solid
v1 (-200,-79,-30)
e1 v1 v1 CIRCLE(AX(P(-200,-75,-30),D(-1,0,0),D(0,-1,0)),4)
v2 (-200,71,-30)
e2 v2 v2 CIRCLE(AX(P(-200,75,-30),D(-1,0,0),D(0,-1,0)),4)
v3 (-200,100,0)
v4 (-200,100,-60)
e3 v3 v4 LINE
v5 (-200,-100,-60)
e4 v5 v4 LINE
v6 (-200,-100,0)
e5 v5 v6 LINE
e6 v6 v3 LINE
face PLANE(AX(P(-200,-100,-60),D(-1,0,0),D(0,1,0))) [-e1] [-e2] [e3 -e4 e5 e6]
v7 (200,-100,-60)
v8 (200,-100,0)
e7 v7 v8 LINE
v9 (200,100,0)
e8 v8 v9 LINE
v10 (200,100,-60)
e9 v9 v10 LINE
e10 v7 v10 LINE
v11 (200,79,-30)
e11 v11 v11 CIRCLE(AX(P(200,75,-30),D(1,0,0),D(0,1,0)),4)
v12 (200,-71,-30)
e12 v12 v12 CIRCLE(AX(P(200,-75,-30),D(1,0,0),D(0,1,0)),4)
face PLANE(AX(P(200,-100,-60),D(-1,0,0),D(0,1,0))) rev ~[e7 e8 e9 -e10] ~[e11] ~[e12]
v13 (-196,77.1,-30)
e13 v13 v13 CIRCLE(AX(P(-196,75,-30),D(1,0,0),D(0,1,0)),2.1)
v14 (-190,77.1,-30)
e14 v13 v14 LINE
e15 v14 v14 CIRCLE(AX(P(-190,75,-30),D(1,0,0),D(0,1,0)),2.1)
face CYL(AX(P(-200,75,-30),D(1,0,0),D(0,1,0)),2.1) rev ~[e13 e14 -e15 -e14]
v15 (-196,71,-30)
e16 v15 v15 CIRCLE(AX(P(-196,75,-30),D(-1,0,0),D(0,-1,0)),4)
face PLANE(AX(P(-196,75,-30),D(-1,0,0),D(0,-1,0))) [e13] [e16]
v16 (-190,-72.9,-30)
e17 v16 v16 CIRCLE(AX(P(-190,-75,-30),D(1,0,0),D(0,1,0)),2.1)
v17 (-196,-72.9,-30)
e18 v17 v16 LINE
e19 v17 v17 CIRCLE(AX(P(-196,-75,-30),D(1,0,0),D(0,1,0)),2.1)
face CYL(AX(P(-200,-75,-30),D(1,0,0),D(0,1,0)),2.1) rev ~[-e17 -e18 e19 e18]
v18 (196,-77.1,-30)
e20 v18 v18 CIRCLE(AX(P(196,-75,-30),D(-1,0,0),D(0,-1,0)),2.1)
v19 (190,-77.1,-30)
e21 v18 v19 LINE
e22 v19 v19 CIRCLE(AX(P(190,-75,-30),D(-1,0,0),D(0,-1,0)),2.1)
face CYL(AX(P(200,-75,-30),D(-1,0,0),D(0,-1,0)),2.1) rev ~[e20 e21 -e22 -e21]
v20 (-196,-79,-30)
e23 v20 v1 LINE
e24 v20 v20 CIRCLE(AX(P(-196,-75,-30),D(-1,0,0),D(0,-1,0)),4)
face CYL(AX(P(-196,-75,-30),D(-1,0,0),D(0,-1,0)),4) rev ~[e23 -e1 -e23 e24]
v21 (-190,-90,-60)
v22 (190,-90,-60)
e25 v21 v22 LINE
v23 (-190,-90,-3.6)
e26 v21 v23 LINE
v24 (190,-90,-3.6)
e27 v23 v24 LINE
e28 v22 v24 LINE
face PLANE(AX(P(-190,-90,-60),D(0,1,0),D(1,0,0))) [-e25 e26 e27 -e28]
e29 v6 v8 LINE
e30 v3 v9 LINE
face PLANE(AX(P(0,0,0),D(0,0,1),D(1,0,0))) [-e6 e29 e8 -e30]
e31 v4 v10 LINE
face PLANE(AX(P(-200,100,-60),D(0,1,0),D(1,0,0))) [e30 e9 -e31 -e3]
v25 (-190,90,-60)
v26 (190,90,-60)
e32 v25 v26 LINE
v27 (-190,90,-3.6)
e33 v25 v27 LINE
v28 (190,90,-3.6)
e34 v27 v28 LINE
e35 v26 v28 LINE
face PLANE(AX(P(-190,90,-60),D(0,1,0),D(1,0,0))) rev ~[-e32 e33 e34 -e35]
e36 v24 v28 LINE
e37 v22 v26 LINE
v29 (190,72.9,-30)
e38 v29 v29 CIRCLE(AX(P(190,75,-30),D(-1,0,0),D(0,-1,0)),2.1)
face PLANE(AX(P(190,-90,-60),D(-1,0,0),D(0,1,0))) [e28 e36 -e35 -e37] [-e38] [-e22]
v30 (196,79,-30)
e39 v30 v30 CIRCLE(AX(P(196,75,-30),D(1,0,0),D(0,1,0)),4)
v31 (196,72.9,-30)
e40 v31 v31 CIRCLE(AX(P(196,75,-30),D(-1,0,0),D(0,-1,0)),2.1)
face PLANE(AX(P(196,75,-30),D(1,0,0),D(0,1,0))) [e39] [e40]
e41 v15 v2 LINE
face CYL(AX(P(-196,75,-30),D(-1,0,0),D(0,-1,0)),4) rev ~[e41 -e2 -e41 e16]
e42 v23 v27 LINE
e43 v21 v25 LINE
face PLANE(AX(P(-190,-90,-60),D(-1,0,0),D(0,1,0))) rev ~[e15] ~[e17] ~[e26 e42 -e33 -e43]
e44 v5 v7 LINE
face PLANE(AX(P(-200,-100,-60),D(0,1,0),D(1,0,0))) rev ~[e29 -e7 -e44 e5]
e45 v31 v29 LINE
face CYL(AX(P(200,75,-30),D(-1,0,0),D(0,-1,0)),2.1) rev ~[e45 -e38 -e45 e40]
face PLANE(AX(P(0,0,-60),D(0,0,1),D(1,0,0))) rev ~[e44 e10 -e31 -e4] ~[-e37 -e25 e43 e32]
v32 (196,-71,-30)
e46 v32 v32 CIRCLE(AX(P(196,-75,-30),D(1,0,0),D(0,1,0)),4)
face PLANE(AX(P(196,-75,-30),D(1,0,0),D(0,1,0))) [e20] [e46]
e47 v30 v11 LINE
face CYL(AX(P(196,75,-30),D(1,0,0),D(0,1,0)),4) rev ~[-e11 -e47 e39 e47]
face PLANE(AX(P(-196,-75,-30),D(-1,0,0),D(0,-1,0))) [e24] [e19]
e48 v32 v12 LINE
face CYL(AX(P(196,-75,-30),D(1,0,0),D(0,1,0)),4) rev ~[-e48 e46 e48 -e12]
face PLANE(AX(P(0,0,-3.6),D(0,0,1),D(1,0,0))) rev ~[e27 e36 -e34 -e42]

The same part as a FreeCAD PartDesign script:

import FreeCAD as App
import Part
import Sketcher

V = App.Vector
Q = App.Units.Quantity

doc = App.newDocument("Part")
body = doc.addObject("PartDesign::Body", "Body")

# Sketch on XY plane
sketch1 = body.newObject("Sketcher::SketchObject", "Sketch")
sketch1.AttachmentSupport = (doc.getObject("XY_Plane"), [""])
sketch1.MapMode = "FlatFace"
sketch1.addGeometry(Part.LineSegment(V(-200, 100, 0), V(-200, -100, 0)), False)
sketch1.addGeometry(Part.LineSegment(V(-200, -100, 0), V(200, -100, 0)), False)
sketch1.addGeometry(Part.LineSegment(V(200, -100, 0), V(200, 100, 0)), False)
sketch1.addGeometry(Part.LineSegment(V(200, 100, 0), V(-200, 100, 0)), False)
sketch1.addConstraint(Sketcher.Constraint("Coincident", 0, 2, 1, 1))
sketch1.addConstraint(Sketcher.Constraint("Coincident", 1, 2, 2, 1))
sketch1.addConstraint(Sketcher.Constraint("Coincident", 2, 2, 3, 1))
sketch1.addConstraint(Sketcher.Constraint("Coincident", 3, 2, 0, 1))
sketch1.addConstraint(Sketcher.Constraint("Vertical", 0))
sketch1.addConstraint(Sketcher.Constraint("Horizontal", 1))
sketch1.addConstraint(Sketcher.Constraint("Vertical", 2))
sketch1.addConstraint(Sketcher.Constraint("Horizontal", 3))
sketch1.addConstraint(Sketcher.Constraint("Symmetric", 0, 2, 2, 2, -1, 1))
sketch1.addConstraint(Sketcher.Constraint("DistanceX", 1, 1, 1, 2, Q("400 mm")))
sketch1.addConstraint(Sketcher.Constraint("DistanceY", 0, 2, 0, 1, Q("200 mm")))
pad1 = body.newObject("PartDesign::Pad", "Pad")
pad1.Profile = sketch1
pad1.Length = 3.6
pad1.Reversed = True

# Sketch on XY plane
sketch2 = body.newObject("Sketcher::SketchObject", "Sketch001")
sketch2.AttachmentSupport = (doc.getObject("XY_Plane"), [""])
sketch2.MapMode = "FlatFace"
sketch2.AttachmentOffset = App.Placement(V(0, 0, -60), App.Rotation())
sketch2.addGeometry(Part.LineSegment(V(-200, 100, 0), V(-200, -100, 0)), False)
sketch2.addGeometry(Part.LineSegment(V(-200, -100, 0), V(200, -100, 0)), False)
sketch2.addGeometry(Part.LineSegment(V(200, -100, 0), V(200, 100, 0)), False)
sketch2.addGeometry(Part.LineSegment(V(200, 100, 0), V(-200, 100, 0)), False)
sketch2.addGeometry(Part.LineSegment(V(190, -90, 0), V(-190, -90, 0)), False)
sketch2.addGeometry(Part.LineSegment(V(-190, -90, 0), V(-190, 90, 0)), False)
sketch2.addGeometry(Part.LineSegment(V(-190, 90, 0), V(190, 90, 0)), False)
sketch2.addGeometry(Part.LineSegment(V(190, 90, 0), V(190, -90, 0)), False)
sketch2.addConstraint(Sketcher.Constraint("Coincident", 0, 2, 1, 1))
sketch2.addConstraint(Sketcher.Constraint("Coincident", 1, 2, 2, 1))
sketch2.addConstraint(Sketcher.Constraint("Coincident", 2, 2, 3, 1))
sketch2.addConstraint(Sketcher.Constraint("Coincident", 3, 2, 0, 1))
sketch2.addConstraint(Sketcher.Constraint("Coincident", 4, 2, 5, 1))
sketch2.addConstraint(Sketcher.Constraint("Coincident", 5, 2, 6, 1))
sketch2.addConstraint(Sketcher.Constraint("Coincident", 6, 2, 7, 1))
sketch2.addConstraint(Sketcher.Constraint("Coincident", 7, 2, 4, 1))
sketch2.addConstraint(Sketcher.Constraint("Vertical", 0))
sketch2.addConstraint(Sketcher.Constraint("Horizontal", 1))
sketch2.addConstraint(Sketcher.Constraint("Vertical", 2))
sketch2.addConstraint(Sketcher.Constraint("Horizontal", 3))
sketch2.addConstraint(Sketcher.Constraint("Horizontal", 4))
sketch2.addConstraint(Sketcher.Constraint("Vertical", 5))
sketch2.addConstraint(Sketcher.Constraint("Horizontal", 6))
sketch2.addConstraint(Sketcher.Constraint("Vertical", 7))
sketch2.addConstraint(Sketcher.Constraint("Symmetric", 0, 2, 2, 2, -1, 1))
sketch2.addConstraint(Sketcher.Constraint("Symmetric", 4, 2, 6, 2, -1, 1))
sketch2.addConstraint(Sketcher.Constraint("DistanceX", 1, 1, 1, 2, Q("400 mm")))
sketch2.addConstraint(Sketcher.Constraint("DistanceX", 4, 2, 4, 1, Q("380 mm")))
sketch2.addConstraint(Sketcher.Constraint("DistanceY", 0, 2, 0, 1, Q("200 mm")))
sketch2.addConstraint(Sketcher.Constraint("DistanceY", 5, 1, 5, 2, Q("180 mm")))
pad2 = body.newObject("PartDesign::Pad", "Pad001")
pad2.Profile = sketch2
pad2.Type = "UpToLast"

# Sketch on YZ plane
sketch3 = body.newObject("Sketcher::SketchObject", "Sketch002")
sketch3.AttachmentSupport = (doc.getObject("YZ_Plane"), [""])
sketch3.MapMode = "FlatFace"
sketch3.AttachmentOffset = App.Placement(V(0, 0, -200), App.Rotation())
sketch3.addGeometry(Part.Circle(V(75, -30, 0), V(0, 0, 1), 2.1), False)
sketch3.addGeometry(Part.Circle(V(-75, -30, 0), V(0, 0, 1), 2.1), False)
sketch3.addConstraint(Sketcher.Constraint("Equal", 0, 1))
sketch3.addConstraint(Sketcher.Constraint("Symmetric", 0, 3, 1, 3, -2))
sketch3.addConstraint(Sketcher.Constraint("Diameter", 0, Q("4.2 mm")))
sketch3.addConstraint(Sketcher.Constraint("DistanceX", -1, 1, 0, 3, Q("75 mm")))
sketch3.addConstraint(Sketcher.Constraint("DistanceY", 0, 3, -1, 1, Q("30 mm")))
doc.recompute()
hole = body.newObject("PartDesign::Hole", "Hole")
hole.Profile = sketch3
hole.ThreadType = "None"
hole.Diameter = 4.2
hole.DepthType = "Dimension"
hole.Depth = 12
hole.DrillPoint = "Angled"
hole.DrillPointAngle = 118
hole.HoleCutType = "Counterbore"
hole.HoleCutDiameter = 8
hole.HoleCutDepth = 4
hole.Reversed = True

# Sketch on YZ plane
sketch4 = body.newObject("Sketcher::SketchObject", "Sketch003")
sketch4.AttachmentSupport = (doc.getObject("YZ_Plane"), [""])
sketch4.MapMode = "FlatFace"
sketch4.AttachmentOffset = App.Placement(V(0, 0, 200), App.Rotation())
sketch4.addGeometry(Part.Circle(V(75, -30, 0), V(0, 0, 1), 2.1), False)
sketch4.addGeometry(Part.Circle(V(-75, -30, 0), V(0, 0, 1), 2.1), False)
sketch4.addConstraint(Sketcher.Constraint("Equal", 0, 1))
sketch4.addConstraint(Sketcher.Constraint("Symmetric", 0, 3, 1, 3, -2))
sketch4.addConstraint(Sketcher.Constraint("Diameter", 0, Q("4.2 mm")))
sketch4.addConstraint(Sketcher.Constraint("DistanceX", -1, 1, 0, 3, Q("75 mm")))
sketch4.addConstraint(Sketcher.Constraint("DistanceY", 0, 3, -1, 1, Q("30 mm")))
doc.recompute()
hole2 = body.newObject("PartDesign::Hole", "Hole001")
hole2.Profile = sketch4
hole2.ThreadType = "None"
hole2.Diameter = 4.2
hole2.DepthType = "Dimension"
hole2.Depth = 12
hole2.DrillPoint = "Angled"
hole2.DrillPointAngle = 118
hole2.HoleCutType = "Counterbore"
hole2.HoleCutDiameter = 8
hole2.HoleCutDepth = 4

doc.recompute()
